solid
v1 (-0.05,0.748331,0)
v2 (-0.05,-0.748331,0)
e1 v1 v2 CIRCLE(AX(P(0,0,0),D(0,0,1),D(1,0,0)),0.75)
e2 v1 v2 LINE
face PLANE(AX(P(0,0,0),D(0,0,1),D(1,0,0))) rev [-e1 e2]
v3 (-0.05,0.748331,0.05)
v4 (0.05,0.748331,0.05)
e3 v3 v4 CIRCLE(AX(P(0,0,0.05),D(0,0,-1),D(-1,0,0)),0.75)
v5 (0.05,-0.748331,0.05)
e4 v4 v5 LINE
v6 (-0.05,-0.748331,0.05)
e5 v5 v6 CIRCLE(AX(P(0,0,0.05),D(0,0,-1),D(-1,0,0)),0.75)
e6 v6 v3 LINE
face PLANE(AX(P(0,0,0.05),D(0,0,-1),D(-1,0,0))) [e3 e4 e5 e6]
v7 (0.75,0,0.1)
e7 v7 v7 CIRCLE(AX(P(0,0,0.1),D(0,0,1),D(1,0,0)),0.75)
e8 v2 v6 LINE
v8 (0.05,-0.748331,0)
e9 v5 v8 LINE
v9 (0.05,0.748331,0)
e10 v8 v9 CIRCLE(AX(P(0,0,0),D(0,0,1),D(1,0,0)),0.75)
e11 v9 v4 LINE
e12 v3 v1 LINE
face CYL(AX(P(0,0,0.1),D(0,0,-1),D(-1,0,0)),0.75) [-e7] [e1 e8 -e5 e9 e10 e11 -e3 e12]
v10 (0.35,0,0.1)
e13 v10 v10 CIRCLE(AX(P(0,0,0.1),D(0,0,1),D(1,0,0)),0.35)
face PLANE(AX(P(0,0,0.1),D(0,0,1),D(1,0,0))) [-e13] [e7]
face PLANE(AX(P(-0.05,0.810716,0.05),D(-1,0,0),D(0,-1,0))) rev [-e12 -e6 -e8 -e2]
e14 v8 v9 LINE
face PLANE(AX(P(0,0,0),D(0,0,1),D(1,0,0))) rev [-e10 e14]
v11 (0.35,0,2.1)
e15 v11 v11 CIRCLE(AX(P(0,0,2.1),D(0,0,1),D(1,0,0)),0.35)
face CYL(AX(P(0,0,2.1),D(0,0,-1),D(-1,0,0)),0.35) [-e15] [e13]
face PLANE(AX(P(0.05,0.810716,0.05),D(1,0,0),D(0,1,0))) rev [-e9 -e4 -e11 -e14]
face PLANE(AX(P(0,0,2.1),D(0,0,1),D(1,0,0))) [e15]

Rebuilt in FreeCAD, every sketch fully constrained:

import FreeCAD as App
import Part
import Sketcher

V = App.Vector
Q = App.Units.Quantity

doc = App.newDocument("Part")
params = doc.addObject("Spreadsheet::Sheet", "Params")
for row, (alias, value) in enumerate([
    ("sketch1_diameter", "1.5 mm"),
    ("pad1_length", "0.1 mm"),
    ("sketch2_diameter", "0.7 mm"),
    ("pad2_length", "2 mm"),
    ("sketch3_width", "0.1 mm"),
    ("pocket1_length", "0.05 mm"),
], start=1):
    params.set(f"A{row}", alias)
    params.set(f"B{row}", "=" + value)
    params.setAlias(f"B{row}", alias)

body = doc.addObject("PartDesign::Body", "Body")

# Sketch on XY plane
sketch1 = body.newObject("Sketcher::SketchObject", "Sketch")
sketch1.AttachmentSupport = (doc.getObject("XY_Plane"), [""])
sketch1.MapMode = "FlatFace"
sketch1.addGeometry(Part.Circle(V(0, 0, 0), V(0, 0, 1), 0.8), False)
sketch1.addConstraint([
    Sketcher.Constraint("Coincident", 0, 3, -1, 1),
    Sketcher.Constraint("Diameter", 0, Q("1.5 mm")),
])
sketch1.setExpression("Constraints[1]", "Params.sketch1_diameter")
pad1 = body.newObject("PartDesign::Pad", "Pad")
pad1.Profile = sketch1
pad1.setExpression("Length", "Params.pad1_length")

# Sketch on XY plane
sketch2 = body.newObject("Sketcher::SketchObject", "Sketch001")
sketch2.AttachmentSupport = (doc.getObject("XY_Plane"), [""])
sketch2.MapMode = "FlatFace"
sketch2.AttachmentOffset = App.Placement(V(0, 0, 0.1), App.Rotation())
sketch2.addGeometry(Part.Circle(V(0, 0, 0), V(0, 0, 1), 0.35), False)
sketch2.addConstraint([
    Sketcher.Constraint("Coincident", 0, 3, -1, 1),
    Sketcher.Constraint("Diameter", 0, Q("0.7 mm")),
])
sketch2.setExpression("Constraints[1]", "Params.sketch2_diameter")
pad2 = body.newObject("PartDesign::Pad", "Pad001")
pad2.Profile = sketch2
pad2.setExpression("Length", "Params.pad2_length")

# Sketch on XY plane
sketch3 = body.newObject("Sketcher::SketchObject", "Sketch002")
sketch3.AttachmentSupport = (doc.getObject("XY_Plane"), [""])
sketch3.MapMode = "FlatFace"
sketch3.addGeometry([
    Part.LineSegment(V(0.05, 0.81, 0), V(0.05, -0.81, 0)),
    Part.LineSegment(V(0.05, -0.81, 0), V(-0.05, -0.81, 0)),
    Part.LineSegment(V(-0.05, -0.81, 0), V(-0.05, 0.81, 0)),
    Part.LineSegment(V(-0.05, 0.81, 0), V(0.05, 0.81, 0)),
], False)
sketch3.addConstraint([
    Sketcher.Constraint("Coincident", 0, 2, 1, 1),
    Sketcher.Constraint("Coincident", 1, 2, 2, 1),
    Sketcher.Constraint("Coincident", 2, 2, 3, 1),
    Sketcher.Constraint("Coincident", 3, 2, 0, 1),
    Sketcher.Constraint("Vertical", 0),
    Sketcher.Constraint("Horizontal", 1),
    Sketcher.Constraint("Vertical", 2),
    Sketcher.Constraint("Horizontal", 3),
    Sketcher.Constraint("Symmetric", 0, 2, 2, 2, -1, 1),
    Sketcher.Constraint("DistanceX", 1, 2, 1, 1, Q("0.1 mm")),
    Sketcher.Constraint("DistanceY", 0, 2, 0, 1, Q("1.621432 mm")),
])
sketch3.setExpression("Constraints[9]", "Params.sketch3_width")
pocket1 = body.newObject("PartDesign::Pocket", "Pocket")
pocket1.Profile = sketch3
pocket1.setExpression("Length", "Params.pocket1_length")
pocket1.Reversed = True

doc.recompute()
